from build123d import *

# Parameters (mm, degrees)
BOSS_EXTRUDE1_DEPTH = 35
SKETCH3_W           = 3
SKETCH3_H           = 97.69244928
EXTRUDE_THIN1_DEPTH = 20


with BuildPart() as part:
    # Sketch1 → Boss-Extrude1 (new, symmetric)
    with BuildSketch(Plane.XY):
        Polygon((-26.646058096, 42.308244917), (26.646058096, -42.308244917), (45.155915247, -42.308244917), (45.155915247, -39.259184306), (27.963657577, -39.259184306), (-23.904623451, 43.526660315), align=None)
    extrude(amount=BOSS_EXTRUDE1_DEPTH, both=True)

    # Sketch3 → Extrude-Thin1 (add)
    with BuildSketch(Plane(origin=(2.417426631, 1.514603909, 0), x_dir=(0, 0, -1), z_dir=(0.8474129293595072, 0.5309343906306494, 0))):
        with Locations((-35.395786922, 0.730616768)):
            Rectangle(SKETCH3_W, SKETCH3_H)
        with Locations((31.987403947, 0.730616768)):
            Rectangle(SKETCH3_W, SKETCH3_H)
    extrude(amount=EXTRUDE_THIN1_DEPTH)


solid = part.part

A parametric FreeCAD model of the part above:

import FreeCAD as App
import Part
import Sketcher
from FreeCAD import Vector
Q = App.Units.Quantity


def add_polygon(sketch, points):
    """Adds a closed chain of lines whose ends are joined by coincident constraints."""
    first, n = sketch.GeometryCount, len(points)
    for a, b in zip(points, points[1:] + points[:1]):
        sketch.addGeometry(Part.LineSegment(App.Vector(*a, 0), App.Vector(*b, 0)), False)
    for i in range(n):
        sketch.addConstraint(Sketcher.Constraint("Coincident", first + i, 2, first + (i + 1) % n, 1))

doc = App.newDocument("Part")
body = doc.addObject("PartDesign::Body", "Body")

# Sketch on XY plane
sketch1 = body.newObject("Sketcher::SketchObject", "Sketch")
sketch1.AttachmentSupport = (doc.getObject("XY_Plane"), [""])
sketch1.MapMode = "FlatFace"
add_polygon(sketch1, [(-26.646058, 42.308245), (26.646058, -42.308245), (45.155915, -42.308245), (45.155915, -39.259184), (27.963658, -39.259184), (-23.904623, 43.52666)])  # lines 0-5
sketch1.addConstraint([
    Sketcher.Constraint("Horizontal", 1),
    Sketcher.Constraint("Vertical", 2),
    Sketcher.Constraint("Horizontal", 3),
    Sketcher.Constraint("Symmetric", 0, 2, 5, 2, -1, 1),
    Sketcher.Constraint("Distance", 0, Q("100 mm")),
    Sketcher.Constraint("Distance", 5, Q("3 mm")),
    Sketcher.Constraint("DistanceY", 2, 1, 2, 2, Q("3.049061 mm")),
    Sketcher.Constraint("DistanceX", 0, 2, 3, 2, Q("1.317599 mm")),
    Sketcher.Constraint("Distance", 4, Q("97.692449 mm")),
    Sketcher.Constraint("DistanceX", 1, 1, 1, 2, Q("18.509857 mm")),
    Sketcher.Constraint("DistanceX", -1, 1, 0, 2, Q("26.646058 mm")),
])
pad1 = body.newObject("PartDesign::Pad", "Pad")
pad1.Profile = sketch1
pad1.Length = 70
pad1.Midplane = True

# Sketch on an angled plane
sketch2 = body.newObject("Sketcher::SketchObject", "Sketch001")
sketch2.Placement = App.Placement(Vector(2.417427, 1.514604, 0), App.Rotation(Vector(0, 0, -1), Vector(-0.530934391, 0.847412929, 0), Vector(0.847412929, 0.530934391, 0), "ZXY"))
add_polygon(sketch2, [(-36.895787, 49.576841), (-36.895787, -48.115608), (-33.895787, -48.115608), (-33.895787, 49.576841)])  # lines 0-3
add_polygon(sketch2, [(30.487404, 49.576841), (30.487404, -48.115608), (33.487404, -48.115608), (33.487404, 49.576841)])  # lines 4-7
sketch2.addConstraint([
    Sketcher.Constraint("Vertical", 0),
    Sketcher.Constraint("Horizontal", 1),
    Sketcher.Constraint("Vertical", 2),
    Sketcher.Constraint("Horizontal", 3),
    Sketcher.Constraint("Vertical", 4),
    Sketcher.Constraint("Horizontal", 5),
    Sketcher.Constraint("Vertical", 6),
    Sketcher.Constraint("Horizontal", 7),
    Sketcher.Constraint("Horizontal", 1, 2, 4, 2),
    Sketcher.Constraint("Horizontal", 3, 2, 6, 2),
    Sketcher.Constraint("Equal", 3, 5),
    Sketcher.Constraint("DistanceX", 1, 1, 1, 2, Q("3 mm")),
    Sketcher.Constraint("DistanceY", 0, 2, 0, 1, Q("97.692449 mm")),
    Sketcher.Constraint("DistanceY", -1, 1, 2, 2, Q("49.576841 mm")),
    Sketcher.Constraint("DistanceX", 1, 2, 4, 2, Q("64.383191 mm")),
    Sketcher.Constraint("DistanceX", 0, 2, -1, 1, Q("36.895787 mm")),
])
pad2 = body.newObject("PartDesign::Pad", "Pad001")
pad2.Profile = sketch2
pad2.Length = 20

doc.recompute()
